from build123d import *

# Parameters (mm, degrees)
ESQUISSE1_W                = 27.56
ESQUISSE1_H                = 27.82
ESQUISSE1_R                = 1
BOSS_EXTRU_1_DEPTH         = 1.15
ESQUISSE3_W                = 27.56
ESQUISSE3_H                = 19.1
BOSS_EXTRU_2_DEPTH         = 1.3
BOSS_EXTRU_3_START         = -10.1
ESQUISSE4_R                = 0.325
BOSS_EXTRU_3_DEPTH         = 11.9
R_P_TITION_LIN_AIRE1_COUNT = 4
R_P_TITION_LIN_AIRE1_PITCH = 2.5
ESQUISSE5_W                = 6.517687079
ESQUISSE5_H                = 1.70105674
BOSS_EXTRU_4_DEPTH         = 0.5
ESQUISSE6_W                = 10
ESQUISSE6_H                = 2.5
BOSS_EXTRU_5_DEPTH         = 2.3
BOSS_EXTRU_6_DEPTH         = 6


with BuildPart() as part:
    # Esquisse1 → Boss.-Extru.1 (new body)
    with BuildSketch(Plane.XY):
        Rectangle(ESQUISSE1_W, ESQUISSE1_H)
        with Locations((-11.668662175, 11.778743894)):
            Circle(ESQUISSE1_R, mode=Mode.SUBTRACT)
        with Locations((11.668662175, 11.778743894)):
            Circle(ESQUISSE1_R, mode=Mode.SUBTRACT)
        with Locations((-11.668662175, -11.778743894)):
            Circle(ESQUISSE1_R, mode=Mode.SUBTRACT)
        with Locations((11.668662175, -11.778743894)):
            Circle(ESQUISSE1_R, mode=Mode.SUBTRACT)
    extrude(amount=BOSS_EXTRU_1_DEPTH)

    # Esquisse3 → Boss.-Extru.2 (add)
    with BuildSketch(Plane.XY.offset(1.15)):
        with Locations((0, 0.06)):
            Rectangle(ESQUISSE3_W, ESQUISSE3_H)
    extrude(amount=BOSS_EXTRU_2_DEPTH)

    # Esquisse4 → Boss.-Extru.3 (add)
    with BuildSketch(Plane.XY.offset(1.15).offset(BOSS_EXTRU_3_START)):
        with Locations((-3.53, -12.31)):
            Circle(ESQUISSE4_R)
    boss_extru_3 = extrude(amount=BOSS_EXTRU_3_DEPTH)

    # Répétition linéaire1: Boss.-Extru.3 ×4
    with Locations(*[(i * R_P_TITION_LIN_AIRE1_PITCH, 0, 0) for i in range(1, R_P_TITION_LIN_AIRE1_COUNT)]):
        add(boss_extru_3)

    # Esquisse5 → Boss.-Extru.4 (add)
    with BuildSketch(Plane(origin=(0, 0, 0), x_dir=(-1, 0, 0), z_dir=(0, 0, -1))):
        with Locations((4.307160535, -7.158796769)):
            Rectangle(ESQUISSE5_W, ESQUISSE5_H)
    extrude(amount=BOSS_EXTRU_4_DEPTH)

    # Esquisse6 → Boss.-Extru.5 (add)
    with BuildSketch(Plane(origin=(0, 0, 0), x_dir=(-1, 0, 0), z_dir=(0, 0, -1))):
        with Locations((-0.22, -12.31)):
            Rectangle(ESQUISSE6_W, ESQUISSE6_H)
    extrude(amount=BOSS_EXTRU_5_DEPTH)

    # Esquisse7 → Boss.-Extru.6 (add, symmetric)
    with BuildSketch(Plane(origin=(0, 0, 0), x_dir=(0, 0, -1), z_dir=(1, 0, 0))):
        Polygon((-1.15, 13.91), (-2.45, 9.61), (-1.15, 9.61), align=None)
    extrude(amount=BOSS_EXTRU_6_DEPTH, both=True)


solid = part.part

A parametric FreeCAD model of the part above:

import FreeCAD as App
import Part
import Sketcher

V = App.Vector


def add_polygon(sketch, points):
    """Adds a closed chain of lines whose ends are joined by coincident constraints."""
    first, n = sketch.GeometryCount, len(points)
    for a, b in zip(points, points[1:] + points[:1]):
        sketch.addGeometry(Part.LineSegment(App.Vector(*a, 0), App.Vector(*b, 0)), False)
    for i in range(n):
        sketch.addConstraint(Sketcher.Constraint("Coincident", first + i, 2, first + (i + 1) % n, 1))

doc = App.newDocument("Part")
params = doc.addObject("Spreadsheet::Sheet", "Params")
for row, (alias, value) in enumerate([
    ("sketch1_diameter", "2 mm"),
    ("sketch1_width", "27.56 mm"),
    ("sketch1_height", "27.82 mm"),
    ("pad1_length", "1.15 mm"),
    ("sketch2_height", "19.1 mm"),
    ("sketch2_width", "27.56 mm"),
    ("pad2_length", "1.3 mm"),
    ("sketch3_diameter", "0.65 mm"),
    ("pad3_length", "11.9 mm"),
    ("linearpattern_pitch", "2.5 mm"),
    ("pad4_length", "0.5 mm"),
    ("sketch5_width", "10 mm"),
    ("sketch5_height", "2.5 mm"),
    ("pad5_length", "2.3 mm"),
    ("sketch6_width", "4.3 mm"),
    ("sketch6_height", "1.3 mm"),
    ("pad6_length", "12 mm"),
], start=1):
    params.set(f"A{row}", alias)
    params.set(f"B{row}", "=" + value)
    params.setAlias(f"B{row}", alias)

body = doc.addObject("PartDesign::Body", "Body")

# Sketch on XY plane
sketch1 = body.newObject("Sketcher::SketchObject", "Sketch")
sketch1.AttachmentSupport = (doc.getObject("XY_Plane"), [""])
sketch1.MapMode = "FlatFace"
add_polygon(sketch1, [(-13.8, 13.9), (-13.8, -13.9), (13.8, -13.9), (13.8, 13.9)])  # lines 0-3
sketch1.addGeometry(Part.Circle(V(-11.7, -11.8, 0), V(0, 0, 1), 1), False)  # 4
sketch1.addGeometry(Part.Circle(V(11.7, -11.8, 0), V(0, 0, 1), 1), False)  # 5
sketch1.addGeometry(Part.Circle(V(-11.7, 11.8, 0), V(0, 0, 1), 1), False)  # 6
sketch1.addGeometry(Part.Circle(V(11.7, 11.8, 0), V(0, 0, 1), 1), False)  # 7
sketch1.addConstraint([
    Sketcher.Constraint("Vertical", 0),
    Sketcher.Constraint("Horizontal", 1),
    Sketcher.Constraint("Vertical", 2),
    Sketcher.Constraint("Horizontal", 3),
    Sketcher.Constraint("Equal", 4, 5),
    Sketcher.Constraint("Equal", 5, 6),
    Sketcher.Constraint("Equal", 6, 7),
    Sketcher.Constraint("Symmetric", 5, 3, 6, 3, -1, 1),
    Sketcher.Constraint("Symmetric", 4, 3, 7, 3, -1, 1),
    Sketcher.Constraint("Symmetric", 0, 2, 2, 2, -1, 1),
    Sketcher.Constraint("Symmetric", 4, 3, 5, 3, -2),
    Sketcher.Constraint("Diameter", 4, 2.0),
    Sketcher.Constraint("DistanceX", 1, 1, 1, 2, 27.56),
    Sketcher.Constraint("DistanceY", 0, 2, 0, 1, 27.82),
    Sketcher.Constraint("DistanceX", 4, 3, -1, 1, 11.668662),
    Sketcher.Constraint("DistanceY", 4, 3, -1, 1, 11.778744),
])
sketch1.setExpression("Constraints[15]", "Params.sketch1_diameter")
sketch1.setExpression("Constraints[16]", "Params.sketch1_width")
sketch1.setExpression("Constraints[17]", "Params.sketch1_height")
pad1 = body.newObject("PartDesign::Pad", "Pad")
pad1.Profile = sketch1
pad1.setExpression("Length", "Params.pad1_length")

# Sketch on XY plane
sketch2 = body.newObject("Sketcher::SketchObject", "Sketch001")
sketch2.AttachmentSupport = (doc.getObject("XY_Plane"), [""])
sketch2.MapMode = "FlatFace"
sketch2.AttachmentOffset = App.Placement(V(0, 0, 1.15), App.Rotation())
add_polygon(sketch2, [(-14, 10), (-14, -9), (14, -9), (14, 10)])  # lines 0-3
sketch2.addConstraint([
    Sketcher.Constraint("Vertical", 0),
    Sketcher.Constraint("Horizontal", 1),
    Sketcher.Constraint("Vertical", 2),
    Sketcher.Constraint("Horizontal", 3),
    Sketcher.Constraint("DistanceY", 0, 2, 0, 1, 19.1),
    Sketcher.Constraint("DistanceX", 1, 1, 1, 2, 27.56),
    Sketcher.Constraint("DistanceX", 0, 2, -1, 1, 13.78),
    Sketcher.Constraint("DistanceY", 0, 2, -1, 1, 9.49),
])
sketch2.setExpression("Constraints[8]", "Params.sketch2_height")
sketch2.setExpression("Constraints[9]", "Params.sketch2_width")
pad2 = body.newObject("PartDesign::Pad", "Pad001")
pad2.Profile = sketch2
pad2.setExpression("Length", "Params.pad2_length")

# Sketch on XY plane
sketch3 = body.newObject("Sketcher::SketchObject", "Sketch002")
sketch3.AttachmentSupport = (doc.getObject("XY_Plane"), [""])
sketch3.MapMode = "FlatFace"
sketch3.AttachmentOffset = App.Placement(V(0, 0, -8.95), App.Rotation())
sketch3.addGeometry(Part.Circle(V(-3.53, -12.31, 0), V(0, 0, 1), 0.33), False)
sketch3.addConstraint([
    Sketcher.Constraint("Diameter", 0, 0.65),
    Sketcher.Constraint("DistanceX", 0, 3, -1, 1, 3.53),
    Sketcher.Constraint("DistanceY", 0, 3, -1, 1, 12.31),
])
sketch3.setExpression("Constraints[0]", "Params.sketch3_diameter")
pad3 = body.newObject("PartDesign::Pad", "Pad002")
pad3.Profile = sketch3
pad3.setExpression("Length", "Params.pad3_length")
doc.recompute()

linearpattern = body.newObject("PartDesign::LinearPattern", "LinearPattern")
linearpattern.Originals = [pad3]
linearpattern.Direction = (doc.getObject("X_Axis"), [""])
linearpattern.Mode = "offset"
linearpattern.setExpression("Offset", "Params.linearpattern_pitch")
linearpattern.Occurrences = 4
body.Tip = linearpattern

# Sketch on XY plane
sketch4 = body.newObject("Sketcher::SketchObject", "Sketch003")
sketch4.AttachmentSupport = (doc.getObject("XY_Plane"), [""])
sketch4.MapMode = "FlatFace"
add_polygon(sketch4, [(-1, -6.3), (-1, -8), (-7.6, -8), (-7.6, -6.3)])  # lines 0-3
sketch4.addConstraint([
    Sketcher.Constraint("Vertical", 0),
    Sketcher.Constraint("Horizontal", 1),
    Sketcher.Constraint("Vertical", 2),
    Sketcher.Constraint("Horizontal", 3),
    Sketcher.Constraint("DistanceX", 1, 2, 1, 1, 6.517687),
    Sketcher.Constraint("DistanceY", 0, 2, 0, 1, 1.701057),
    Sketcher.Constraint("DistanceY", 2, 2, -1, 1, 6.308268),
    Sketcher.Constraint("DistanceX", 0, 2, -1, 1, 1.048317),
])
pad4 = body.newObject("PartDesign::Pad", "Pad003")
pad4.Profile = sketch4
pad4.setExpression("Length", "Params.pad4_length")
pad4.Reversed = True

# Sketch on XY plane
sketch5 = body.newObject("Sketcher::SketchObject", "Sketch004")
sketch5.AttachmentSupport = (doc.getObject("XY_Plane"), [""])
sketch5.MapMode = "FlatFace"
add_polygon(sketch5, [(5.2, -11.1), (5.2, -13.6), (-4.8, -13.6), (-4.8, -11.1)])  # lines 0-3
sketch5.addConstraint([
    Sketcher.Constraint("Vertical", 0),
    Sketcher.Constraint("Horizontal", 1),
    Sketcher.Constraint("Vertical", 2),
    Sketcher.Constraint("Horizontal", 3),
    Sketcher.Constraint("DistanceX", 1, 2, 1, 1, 10.0),
    Sketcher.Constraint("DistanceY", 0, 2, 0, 1, 2.5),
    Sketcher.Constraint("DistanceX", -1, 1, 0, 2, 5.22),
    Sketcher.Constraint("DistanceY", 0, 2, -1, 1, 13.56),
])
sketch5.setExpression("Constraints[8]", "Params.sketch5_width")
sketch5.setExpression("Constraints[9]", "Params.sketch5_height")
pad5 = body.newObject("PartDesign::Pad", "Pad004")
pad5.Profile = sketch5
pad5.setExpression("Length", "Params.pad5_length")
pad5.Reversed = True

# Sketch on YZ plane
sketch6 = body.newObject("Sketcher::SketchObject", "Sketch005")
sketch6.AttachmentSupport = (doc.getObject("YZ_Plane"), [""])
sketch6.MapMode = "FlatFace"
add_polygon(sketch6, [(13.9, 1.1), (9.6, 2.5), (9.6, 1.1)])  # lines 0-2
sketch6.addConstraint([
    Sketcher.Constraint("Vertical", 1),
    Sketcher.Constraint("Horizontal", 2),
    Sketcher.Constraint("DistanceX", 2, 1, 2, 2, 4.3),
    Sketcher.Constraint("DistanceY", 1, 2, 1, 1, 1.3),
    Sketcher.Constraint("DistanceX", -1, 1, 0, 2, 9.61),
    Sketcher.Constraint("DistanceY", -1, 1, 0, 2, 2.45),
])
sketch6.setExpression("Constraints[5]", "Params.sketch6_width")
sketch6.setExpression("Constraints[6]", "Params.sketch6_height")
pad6 = body.newObject("PartDesign::Pad", "Pad005")
pad6.Profile = sketch6
pad6.setExpression("Length", "Params.pad6_length")
pad6.Midplane = True

doc.recompute()
